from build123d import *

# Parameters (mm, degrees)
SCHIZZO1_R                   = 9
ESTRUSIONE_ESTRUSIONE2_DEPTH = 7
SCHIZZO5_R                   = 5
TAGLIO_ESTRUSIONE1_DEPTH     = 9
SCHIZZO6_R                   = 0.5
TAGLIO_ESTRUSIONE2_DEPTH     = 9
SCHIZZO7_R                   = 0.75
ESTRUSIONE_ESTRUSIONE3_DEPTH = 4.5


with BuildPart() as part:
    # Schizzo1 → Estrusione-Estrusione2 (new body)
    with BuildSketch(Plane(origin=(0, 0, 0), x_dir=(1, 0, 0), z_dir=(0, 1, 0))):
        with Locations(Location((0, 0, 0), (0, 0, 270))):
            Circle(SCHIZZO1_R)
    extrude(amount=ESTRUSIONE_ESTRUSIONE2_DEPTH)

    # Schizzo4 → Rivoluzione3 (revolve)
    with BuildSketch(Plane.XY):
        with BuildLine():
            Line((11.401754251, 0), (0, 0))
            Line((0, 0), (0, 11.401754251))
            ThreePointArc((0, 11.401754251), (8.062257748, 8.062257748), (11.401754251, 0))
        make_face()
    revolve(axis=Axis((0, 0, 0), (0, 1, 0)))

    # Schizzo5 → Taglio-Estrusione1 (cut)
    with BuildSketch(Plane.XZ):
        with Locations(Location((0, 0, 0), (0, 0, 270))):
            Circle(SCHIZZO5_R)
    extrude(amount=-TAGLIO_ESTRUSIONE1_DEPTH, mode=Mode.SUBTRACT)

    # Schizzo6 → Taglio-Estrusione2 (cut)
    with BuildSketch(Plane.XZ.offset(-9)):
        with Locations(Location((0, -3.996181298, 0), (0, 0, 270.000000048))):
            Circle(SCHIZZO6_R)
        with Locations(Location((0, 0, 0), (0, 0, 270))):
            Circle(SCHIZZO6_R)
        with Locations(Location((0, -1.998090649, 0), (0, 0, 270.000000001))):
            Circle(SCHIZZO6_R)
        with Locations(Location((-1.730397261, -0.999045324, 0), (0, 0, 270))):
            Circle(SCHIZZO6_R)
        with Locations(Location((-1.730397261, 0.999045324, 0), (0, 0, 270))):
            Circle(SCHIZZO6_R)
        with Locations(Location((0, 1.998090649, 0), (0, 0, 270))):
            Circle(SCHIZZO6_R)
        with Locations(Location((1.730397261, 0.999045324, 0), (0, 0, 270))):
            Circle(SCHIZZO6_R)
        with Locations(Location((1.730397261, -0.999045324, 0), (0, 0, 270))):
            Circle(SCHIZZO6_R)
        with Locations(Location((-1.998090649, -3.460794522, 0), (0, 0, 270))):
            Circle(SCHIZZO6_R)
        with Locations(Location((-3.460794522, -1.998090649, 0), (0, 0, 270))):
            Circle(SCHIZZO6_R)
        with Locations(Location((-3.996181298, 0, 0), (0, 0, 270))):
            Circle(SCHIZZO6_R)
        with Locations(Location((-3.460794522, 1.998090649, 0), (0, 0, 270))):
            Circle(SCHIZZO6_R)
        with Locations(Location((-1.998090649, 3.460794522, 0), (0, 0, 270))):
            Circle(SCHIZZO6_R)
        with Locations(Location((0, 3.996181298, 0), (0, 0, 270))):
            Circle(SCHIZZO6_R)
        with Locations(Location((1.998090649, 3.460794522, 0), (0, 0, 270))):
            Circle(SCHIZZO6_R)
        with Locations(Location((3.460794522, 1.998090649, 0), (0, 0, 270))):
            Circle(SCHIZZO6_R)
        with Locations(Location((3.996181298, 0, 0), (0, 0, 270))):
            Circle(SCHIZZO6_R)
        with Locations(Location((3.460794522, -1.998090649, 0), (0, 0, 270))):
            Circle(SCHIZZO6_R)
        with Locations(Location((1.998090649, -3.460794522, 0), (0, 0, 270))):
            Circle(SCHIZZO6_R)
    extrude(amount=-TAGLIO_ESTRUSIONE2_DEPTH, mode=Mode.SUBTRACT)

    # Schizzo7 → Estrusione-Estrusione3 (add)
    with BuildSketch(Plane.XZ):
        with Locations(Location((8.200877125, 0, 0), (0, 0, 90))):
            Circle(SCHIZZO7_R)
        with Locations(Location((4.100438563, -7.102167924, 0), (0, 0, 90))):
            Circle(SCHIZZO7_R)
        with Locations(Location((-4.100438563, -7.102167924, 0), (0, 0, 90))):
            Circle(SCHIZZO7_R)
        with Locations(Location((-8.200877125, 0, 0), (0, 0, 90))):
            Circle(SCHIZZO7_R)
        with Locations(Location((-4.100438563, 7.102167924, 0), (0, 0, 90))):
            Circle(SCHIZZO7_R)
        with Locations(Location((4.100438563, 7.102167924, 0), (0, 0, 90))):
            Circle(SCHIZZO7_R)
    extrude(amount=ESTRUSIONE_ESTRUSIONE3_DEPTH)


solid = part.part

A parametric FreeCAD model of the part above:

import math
import FreeCAD as App
import Part
import Sketcher

doc = App.newDocument("Part")
body = doc.addObject("PartDesign::Body", "Body")

sketch1 = body.newObject("Sketcher::SketchObject", "Sketch")
sketch1.AttachmentSupport = (doc.getObject("XZ_Plane"), [""])
sketch1.MapMode = "FlatFace"
sketch1.addGeometry(Part.Circle(App.Vector(0, 0, 0), App.Vector(0, 0, 1), 9), False)
sketch1.addConstraint(Sketcher.Constraint("Coincident", 0, 3, -1, 1))
sketch1.addConstraint(Sketcher.Constraint("Diameter", 0, 18.0))
pad1 = body.newObject("PartDesign::Pad", "Pad")
pad1.Profile = sketch1
pad1.Length = 7
pad1.Reversed = True

sketch2 = body.newObject("Sketcher::SketchObject", "Sketch001")
sketch2.AttachmentSupport = (doc.getObject("XY_Plane"), [""])
sketch2.MapMode = "FlatFace"
sketch2.addGeometry(Part.LineSegment(App.Vector(0, 0, 0), App.Vector(11, 0, 0)), False)
sketch2.addGeometry(Part.ArcOfCircle(Part.Circle(App.Vector(0, 0, 0), App.Vector(0, 0, 1), 11), math.radians(0), math.radians(90)), False)
sketch2.addGeometry(Part.LineSegment(App.Vector(0, 11, 0), App.Vector(0, 0, 0)), False)
sketch2.addConstraint(Sketcher.Constraint("Coincident", 0, 2, 1, 1))
sketch2.addConstraint(Sketcher.Constraint("Coincident", 1, 2, 2, 1))
sketch2.addConstraint(Sketcher.Constraint("Coincident", 2, 2, 0, 1))
sketch2.addConstraint(Sketcher.Constraint("Horizontal", 0))
sketch2.addConstraint(Sketcher.Constraint("Vertical", 2))
sketch2.addConstraint(Sketcher.Constraint("Coincident", 1, 3, -1, 1))
sketch2.addConstraint(Sketcher.Constraint("Coincident", 2, 2, -1, 1))
sketch2.addConstraint(Sketcher.Constraint("Radius", 1, 11.401754))
revolution = body.newObject("PartDesign::Revolution", "Revolution")
revolution.Profile = sketch2
revolution.ReferenceAxis = (sketch2, ["V_Axis"])
revolution.Angle = 360

sketch3 = body.newObject("Sketcher::SketchObject", "Sketch002")
sketch3.AttachmentSupport = (doc.getObject("XZ_Plane"), [""])
sketch3.MapMode = "FlatFace"
sketch3.addGeometry(Part.Circle(App.Vector(0, 0, 0), App.Vector(0, 0, 1), 5), False)
sketch3.addConstraint(Sketcher.Constraint("Coincident", 0, 3, -1, 1))
sketch3.addConstraint(Sketcher.Constraint("Diameter", 0, 10.0))
pocket1 = body.newObject("PartDesign::Pocket", "Pocket")
pocket1.Profile = sketch3
pocket1.Length = 9

sketch4 = body.newObject("Sketcher::SketchObject", "Sketch003")
sketch4.AttachmentSupport = (doc.getObject("XZ_Plane"), [""])
sketch4.MapMode = "FlatFace"
sketch4.AttachmentOffset = App.Placement(App.Vector(0, 0, -9), App.Rotation())
sketch4.addGeometry(Part.Circle(App.Vector(0, -4, 0), App.Vector(0, 0, 1), 0.5), False)
sketch4.addGeometry(Part.Circle(App.Vector(0, 0, 0), App.Vector(0, 0, 1), 0.5), False)
sketch4.addGeometry(Part.Circle(App.Vector(0, -2, 0), App.Vector(0, 0, 1), 0.5), False)
sketch4.addGeometry(Part.Circle(App.Vector(-1.7, -1, 0), App.Vector(0, 0, 1), 0.5), False)
sketch4.addGeometry(Part.Circle(App.Vector(-1.7, 1, 0), App.Vector(0, 0, 1), 0.5), False)
sketch4.addGeometry(Part.Circle(App.Vector(0, 2, 0), App.Vector(0, 0, 1), 0.5), False)
sketch4.addGeometry(Part.Circle(App.Vector(1.7, 1, 0), App.Vector(0, 0, 1), 0.5), False)
sketch4.addGeometry(Part.Circle(App.Vector(1.7, -1, 0), App.Vector(0, 0, 1), 0.5), False)
sketch4.addGeometry(Part.Circle(App.Vector(-2, -3.5, 0), App.Vector(0, 0, 1), 0.5), False)
sketch4.addGeometry(Part.Circle(App.Vector(-3.5, -2, 0), App.Vector(0, 0, 1), 0.5), False)
sketch4.addGeometry(Part.Circle(App.Vector(-4, 0, 0), App.Vector(0, 0, 1), 0.5), False)
sketch4.addGeometry(Part.Circle(App.Vector(-3.5, 2, 0), App.Vector(0, 0, 1), 0.5), False)
sketch4.addGeometry(Part.Circle(App.Vector(-2, 3.5, 0), App.Vector(0, 0, 1), 0.5), False)
sketch4.addGeometry(Part.Circle(App.Vector(0, 4, 0), App.Vector(0, 0, 1), 0.5), False)
sketch4.addGeometry(Part.Circle(App.Vector(2, 3.5, 0), App.Vector(0, 0, 1), 0.5), False)
sketch4.addGeometry(Part.Circle(App.Vector(3.5, 2, 0), App.Vector(0, 0, 1), 0.5), False)
sketch4.addGeometry(Part.Circle(App.Vector(4, 0, 0), App.Vector(0, 0, 1), 0.5), False)
sketch4.addGeometry(Part.Circle(App.Vector(3.5, -2, 0), App.Vector(0, 0, 1), 0.5), False)
sketch4.addGeometry(Part.Circle(App.Vector(2, -3.5, 0), App.Vector(0, 0, 1), 0.5), False)
sketch4.addConstraint(Sketcher.Constraint("Coincident", 1, 3, -1, 1))
sketch4.addConstraint(Sketcher.Constraint("Equal", 0, 1))
sketch4.addConstraint(Sketcher.Constraint("Equal", 1, 2))
sketch4.addConstraint(Sketcher.Constraint("Equal", 2, 3))
sketch4.addConstraint(Sketcher.Constraint("Equal", 3, 4))
sketch4.addConstraint(Sketcher.Constraint("Equal", 4, 5))
sketch4.addConstraint(Sketcher.Constraint("Equal", 5, 6))
sketch4.addConstraint(Sketcher.Constraint("Equal", 6, 7))
sketch4.addConstraint(Sketcher.Constraint("Equal", 7, 8))
sketch4.addConstraint(Sketcher.Constraint("Equal", 8, 9))
sketch4.addConstraint(Sketcher.Constraint("Equal", 9, 10))
sketch4.addConstraint(Sketcher.Constraint("Equal", 10, 11))
sketch4.addConstraint(Sketcher.Constraint("Equal", 11, 12))
sketch4.addConstraint(Sketcher.Constraint("Equal", 12, 13))
sketch4.addConstraint(Sketcher.Constraint("Equal", 13, 14))
sketch4.addConstraint(Sketcher.Constraint("Equal", 14, 15))
sketch4.addConstraint(Sketcher.Constraint("Equal", 15, 16))
sketch4.addConstraint(Sketcher.Constraint("Equal", 16, 17))
sketch4.addConstraint(Sketcher.Constraint("Equal", 17, 18))
sketch4.addConstraint(Sketcher.Constraint("Symmetric", 2, 3, 5, 3, -1, 1))
sketch4.addConstraint(Sketcher.Constraint("Symmetric", 3, 3, 6, 3, -1, 1))
sketch4.addConstraint(Sketcher.Constraint("Symmetric", 4, 3, 7, 3, -1, 1))
sketch4.addConstraint(Sketcher.Constraint("Symmetric", 0, 3, 13, 3, -1, 1))
sketch4.addConstraint(Sketcher.Constraint("Symmetric", 8, 3, 14, 3, -1, 1))
sketch4.addConstraint(Sketcher.Constraint("Symmetric", 9, 3, 15, 3, -1, 1))
sketch4.addConstraint(Sketcher.Constraint("Symmetric", 10, 3, 16, 3, -1, 1))
sketch4.addConstraint(Sketcher.Constraint("Symmetric", 11, 3, 17, 3, -1, 1))
sketch4.addConstraint(Sketcher.Constraint("Symmetric", 12, 3, 18, 3, -1, 1))
sketch4.addConstraint(Sketcher.Constraint("Symmetric", 4, 3, 6, 3, -2))
sketch4.addConstraint(Sketcher.Constraint("Symmetric", 12, 3, 14, 3, -2))
sketch4.addConstraint(Sketcher.Constraint("Symmetric", 11, 3, 15, 3, -2))
sketch4.addConstraint(Sketcher.Constraint("PointOnObject", 0, 3, -2))
sketch4.addConstraint(Sketcher.Constraint("PointOnObject", 2, 3, -2))
sketch4.addConstraint(Sketcher.Constraint("PointOnObject", 10, 3, -1))
sketch4.addConstraint(Sketcher.Constraint("Horizontal", 2, 3, 9, 3))
sketch4.addConstraint(Sketcher.Constraint("Diameter", 0, 1.0))
sketch4.addConstraint(Sketcher.Constraint("DistanceY", 0, 3, -1, 1, 3.996181))
sketch4.addConstraint(Sketcher.Constraint("DistanceY", 2, 3, -1, 1, 1.998091))
sketch4.addConstraint(Sketcher.Constraint("DistanceX", 8, 3, -1, 1, 1.998091))
sketch4.addConstraint(Sketcher.Constraint("DistanceX", 10, 3, -1, 1, 3.996181))
sketch4.addConstraint(Sketcher.Constraint("DistanceY", 3, 3, 4, 3, 1.998091))
sketch4.addConstraint(Sketcher.Constraint("DistanceY", 8, 3, 3, 3, 2.461749))
sketch4.addConstraint(Sketcher.Constraint("DistanceX", 3, 3, -1, 1, 1.730397))
sketch4.addConstraint(Sketcher.Constraint("DistanceX", 9, 3, -1, 1, 3.460795))
pocket2 = body.newObject("PartDesign::Pocket", "Pocket001")
pocket2.Profile = sketch4
pocket2.Length = 9

sketch5 = body.newObject("Sketcher::SketchObject", "Sketch004")
sketch5.AttachmentSupport = (doc.getObject("XZ_Plane"), [""])
sketch5.MapMode = "FlatFace"
sketch5.addGeometry(Part.Circle(App.Vector(8.2, 0, 0), App.Vector(0, 0, 1), 0.8), False)
sketch5.addGeometry(Part.Circle(App.Vector(4.1, -7.1, 0), App.Vector(0, 0, 1), 0.8), False)
sketch5.addGeometry(Part.Circle(App.Vector(-4.1, -7.1, 0), App.Vector(0, 0, 1), 0.8), False)
sketch5.addGeometry(Part.Circle(App.Vector(-8.2, 0, 0), App.Vector(0, 0, 1), 0.8), False)
sketch5.addGeometry(Part.Circle(App.Vector(-4.1, 7.1, 0), App.Vector(0, 0, 1), 0.8), False)
sketch5.addGeometry(Part.Circle(App.Vector(4.1, 7.1, 0), App.Vector(0, 0, 1), 0.8), False)
sketch5.addConstraint(Sketcher.Constraint("Equal", 0, 1))
sketch5.addConstraint(Sketcher.Constraint("Equal", 1, 2))
sketch5.addConstraint(Sketcher.Constraint("Equal", 2, 3))
sketch5.addConstraint(Sketcher.Constraint("Equal", 3, 4))
sketch5.addConstraint(Sketcher.Constraint("Equal", 4, 5))
sketch5.addConstraint(Sketcher.Constraint("Symmetric", 0, 3, 3, 3, -1, 1))
sketch5.addConstraint(Sketcher.Constraint("Symmetric", 1, 3, 4, 3, -1, 1))
sketch5.addConstraint(Sketcher.Constraint("Symmetric", 2, 3, 5, 3, -1, 1))
sketch5.addConstraint(Sketcher.Constraint("Symmetric", 1, 3, 2, 3, -2))
sketch5.addConstraint(Sketcher.Constraint("PointOnObject", 0, 3, -1))
sketch5.addConstraint(Sketcher.Constraint("Diameter", 0, 1.5))
sketch5.addConstraint(Sketcher.Constraint("DistanceX", -1, 1, 1, 3, 4.100439))
sketch5.addConstraint(Sketcher.Constraint("DistanceX", 1, 3, 0, 3, 4.100439))
sketch5.addConstraint(Sketcher.Constraint("DistanceY", 1, 3, -1, 1, 7.102168))
pad2 = body.newObject("PartDesign::Pad", "Pad001")
pad2.Profile = sketch5
pad2.Length = 4.5

doc.recompute()
